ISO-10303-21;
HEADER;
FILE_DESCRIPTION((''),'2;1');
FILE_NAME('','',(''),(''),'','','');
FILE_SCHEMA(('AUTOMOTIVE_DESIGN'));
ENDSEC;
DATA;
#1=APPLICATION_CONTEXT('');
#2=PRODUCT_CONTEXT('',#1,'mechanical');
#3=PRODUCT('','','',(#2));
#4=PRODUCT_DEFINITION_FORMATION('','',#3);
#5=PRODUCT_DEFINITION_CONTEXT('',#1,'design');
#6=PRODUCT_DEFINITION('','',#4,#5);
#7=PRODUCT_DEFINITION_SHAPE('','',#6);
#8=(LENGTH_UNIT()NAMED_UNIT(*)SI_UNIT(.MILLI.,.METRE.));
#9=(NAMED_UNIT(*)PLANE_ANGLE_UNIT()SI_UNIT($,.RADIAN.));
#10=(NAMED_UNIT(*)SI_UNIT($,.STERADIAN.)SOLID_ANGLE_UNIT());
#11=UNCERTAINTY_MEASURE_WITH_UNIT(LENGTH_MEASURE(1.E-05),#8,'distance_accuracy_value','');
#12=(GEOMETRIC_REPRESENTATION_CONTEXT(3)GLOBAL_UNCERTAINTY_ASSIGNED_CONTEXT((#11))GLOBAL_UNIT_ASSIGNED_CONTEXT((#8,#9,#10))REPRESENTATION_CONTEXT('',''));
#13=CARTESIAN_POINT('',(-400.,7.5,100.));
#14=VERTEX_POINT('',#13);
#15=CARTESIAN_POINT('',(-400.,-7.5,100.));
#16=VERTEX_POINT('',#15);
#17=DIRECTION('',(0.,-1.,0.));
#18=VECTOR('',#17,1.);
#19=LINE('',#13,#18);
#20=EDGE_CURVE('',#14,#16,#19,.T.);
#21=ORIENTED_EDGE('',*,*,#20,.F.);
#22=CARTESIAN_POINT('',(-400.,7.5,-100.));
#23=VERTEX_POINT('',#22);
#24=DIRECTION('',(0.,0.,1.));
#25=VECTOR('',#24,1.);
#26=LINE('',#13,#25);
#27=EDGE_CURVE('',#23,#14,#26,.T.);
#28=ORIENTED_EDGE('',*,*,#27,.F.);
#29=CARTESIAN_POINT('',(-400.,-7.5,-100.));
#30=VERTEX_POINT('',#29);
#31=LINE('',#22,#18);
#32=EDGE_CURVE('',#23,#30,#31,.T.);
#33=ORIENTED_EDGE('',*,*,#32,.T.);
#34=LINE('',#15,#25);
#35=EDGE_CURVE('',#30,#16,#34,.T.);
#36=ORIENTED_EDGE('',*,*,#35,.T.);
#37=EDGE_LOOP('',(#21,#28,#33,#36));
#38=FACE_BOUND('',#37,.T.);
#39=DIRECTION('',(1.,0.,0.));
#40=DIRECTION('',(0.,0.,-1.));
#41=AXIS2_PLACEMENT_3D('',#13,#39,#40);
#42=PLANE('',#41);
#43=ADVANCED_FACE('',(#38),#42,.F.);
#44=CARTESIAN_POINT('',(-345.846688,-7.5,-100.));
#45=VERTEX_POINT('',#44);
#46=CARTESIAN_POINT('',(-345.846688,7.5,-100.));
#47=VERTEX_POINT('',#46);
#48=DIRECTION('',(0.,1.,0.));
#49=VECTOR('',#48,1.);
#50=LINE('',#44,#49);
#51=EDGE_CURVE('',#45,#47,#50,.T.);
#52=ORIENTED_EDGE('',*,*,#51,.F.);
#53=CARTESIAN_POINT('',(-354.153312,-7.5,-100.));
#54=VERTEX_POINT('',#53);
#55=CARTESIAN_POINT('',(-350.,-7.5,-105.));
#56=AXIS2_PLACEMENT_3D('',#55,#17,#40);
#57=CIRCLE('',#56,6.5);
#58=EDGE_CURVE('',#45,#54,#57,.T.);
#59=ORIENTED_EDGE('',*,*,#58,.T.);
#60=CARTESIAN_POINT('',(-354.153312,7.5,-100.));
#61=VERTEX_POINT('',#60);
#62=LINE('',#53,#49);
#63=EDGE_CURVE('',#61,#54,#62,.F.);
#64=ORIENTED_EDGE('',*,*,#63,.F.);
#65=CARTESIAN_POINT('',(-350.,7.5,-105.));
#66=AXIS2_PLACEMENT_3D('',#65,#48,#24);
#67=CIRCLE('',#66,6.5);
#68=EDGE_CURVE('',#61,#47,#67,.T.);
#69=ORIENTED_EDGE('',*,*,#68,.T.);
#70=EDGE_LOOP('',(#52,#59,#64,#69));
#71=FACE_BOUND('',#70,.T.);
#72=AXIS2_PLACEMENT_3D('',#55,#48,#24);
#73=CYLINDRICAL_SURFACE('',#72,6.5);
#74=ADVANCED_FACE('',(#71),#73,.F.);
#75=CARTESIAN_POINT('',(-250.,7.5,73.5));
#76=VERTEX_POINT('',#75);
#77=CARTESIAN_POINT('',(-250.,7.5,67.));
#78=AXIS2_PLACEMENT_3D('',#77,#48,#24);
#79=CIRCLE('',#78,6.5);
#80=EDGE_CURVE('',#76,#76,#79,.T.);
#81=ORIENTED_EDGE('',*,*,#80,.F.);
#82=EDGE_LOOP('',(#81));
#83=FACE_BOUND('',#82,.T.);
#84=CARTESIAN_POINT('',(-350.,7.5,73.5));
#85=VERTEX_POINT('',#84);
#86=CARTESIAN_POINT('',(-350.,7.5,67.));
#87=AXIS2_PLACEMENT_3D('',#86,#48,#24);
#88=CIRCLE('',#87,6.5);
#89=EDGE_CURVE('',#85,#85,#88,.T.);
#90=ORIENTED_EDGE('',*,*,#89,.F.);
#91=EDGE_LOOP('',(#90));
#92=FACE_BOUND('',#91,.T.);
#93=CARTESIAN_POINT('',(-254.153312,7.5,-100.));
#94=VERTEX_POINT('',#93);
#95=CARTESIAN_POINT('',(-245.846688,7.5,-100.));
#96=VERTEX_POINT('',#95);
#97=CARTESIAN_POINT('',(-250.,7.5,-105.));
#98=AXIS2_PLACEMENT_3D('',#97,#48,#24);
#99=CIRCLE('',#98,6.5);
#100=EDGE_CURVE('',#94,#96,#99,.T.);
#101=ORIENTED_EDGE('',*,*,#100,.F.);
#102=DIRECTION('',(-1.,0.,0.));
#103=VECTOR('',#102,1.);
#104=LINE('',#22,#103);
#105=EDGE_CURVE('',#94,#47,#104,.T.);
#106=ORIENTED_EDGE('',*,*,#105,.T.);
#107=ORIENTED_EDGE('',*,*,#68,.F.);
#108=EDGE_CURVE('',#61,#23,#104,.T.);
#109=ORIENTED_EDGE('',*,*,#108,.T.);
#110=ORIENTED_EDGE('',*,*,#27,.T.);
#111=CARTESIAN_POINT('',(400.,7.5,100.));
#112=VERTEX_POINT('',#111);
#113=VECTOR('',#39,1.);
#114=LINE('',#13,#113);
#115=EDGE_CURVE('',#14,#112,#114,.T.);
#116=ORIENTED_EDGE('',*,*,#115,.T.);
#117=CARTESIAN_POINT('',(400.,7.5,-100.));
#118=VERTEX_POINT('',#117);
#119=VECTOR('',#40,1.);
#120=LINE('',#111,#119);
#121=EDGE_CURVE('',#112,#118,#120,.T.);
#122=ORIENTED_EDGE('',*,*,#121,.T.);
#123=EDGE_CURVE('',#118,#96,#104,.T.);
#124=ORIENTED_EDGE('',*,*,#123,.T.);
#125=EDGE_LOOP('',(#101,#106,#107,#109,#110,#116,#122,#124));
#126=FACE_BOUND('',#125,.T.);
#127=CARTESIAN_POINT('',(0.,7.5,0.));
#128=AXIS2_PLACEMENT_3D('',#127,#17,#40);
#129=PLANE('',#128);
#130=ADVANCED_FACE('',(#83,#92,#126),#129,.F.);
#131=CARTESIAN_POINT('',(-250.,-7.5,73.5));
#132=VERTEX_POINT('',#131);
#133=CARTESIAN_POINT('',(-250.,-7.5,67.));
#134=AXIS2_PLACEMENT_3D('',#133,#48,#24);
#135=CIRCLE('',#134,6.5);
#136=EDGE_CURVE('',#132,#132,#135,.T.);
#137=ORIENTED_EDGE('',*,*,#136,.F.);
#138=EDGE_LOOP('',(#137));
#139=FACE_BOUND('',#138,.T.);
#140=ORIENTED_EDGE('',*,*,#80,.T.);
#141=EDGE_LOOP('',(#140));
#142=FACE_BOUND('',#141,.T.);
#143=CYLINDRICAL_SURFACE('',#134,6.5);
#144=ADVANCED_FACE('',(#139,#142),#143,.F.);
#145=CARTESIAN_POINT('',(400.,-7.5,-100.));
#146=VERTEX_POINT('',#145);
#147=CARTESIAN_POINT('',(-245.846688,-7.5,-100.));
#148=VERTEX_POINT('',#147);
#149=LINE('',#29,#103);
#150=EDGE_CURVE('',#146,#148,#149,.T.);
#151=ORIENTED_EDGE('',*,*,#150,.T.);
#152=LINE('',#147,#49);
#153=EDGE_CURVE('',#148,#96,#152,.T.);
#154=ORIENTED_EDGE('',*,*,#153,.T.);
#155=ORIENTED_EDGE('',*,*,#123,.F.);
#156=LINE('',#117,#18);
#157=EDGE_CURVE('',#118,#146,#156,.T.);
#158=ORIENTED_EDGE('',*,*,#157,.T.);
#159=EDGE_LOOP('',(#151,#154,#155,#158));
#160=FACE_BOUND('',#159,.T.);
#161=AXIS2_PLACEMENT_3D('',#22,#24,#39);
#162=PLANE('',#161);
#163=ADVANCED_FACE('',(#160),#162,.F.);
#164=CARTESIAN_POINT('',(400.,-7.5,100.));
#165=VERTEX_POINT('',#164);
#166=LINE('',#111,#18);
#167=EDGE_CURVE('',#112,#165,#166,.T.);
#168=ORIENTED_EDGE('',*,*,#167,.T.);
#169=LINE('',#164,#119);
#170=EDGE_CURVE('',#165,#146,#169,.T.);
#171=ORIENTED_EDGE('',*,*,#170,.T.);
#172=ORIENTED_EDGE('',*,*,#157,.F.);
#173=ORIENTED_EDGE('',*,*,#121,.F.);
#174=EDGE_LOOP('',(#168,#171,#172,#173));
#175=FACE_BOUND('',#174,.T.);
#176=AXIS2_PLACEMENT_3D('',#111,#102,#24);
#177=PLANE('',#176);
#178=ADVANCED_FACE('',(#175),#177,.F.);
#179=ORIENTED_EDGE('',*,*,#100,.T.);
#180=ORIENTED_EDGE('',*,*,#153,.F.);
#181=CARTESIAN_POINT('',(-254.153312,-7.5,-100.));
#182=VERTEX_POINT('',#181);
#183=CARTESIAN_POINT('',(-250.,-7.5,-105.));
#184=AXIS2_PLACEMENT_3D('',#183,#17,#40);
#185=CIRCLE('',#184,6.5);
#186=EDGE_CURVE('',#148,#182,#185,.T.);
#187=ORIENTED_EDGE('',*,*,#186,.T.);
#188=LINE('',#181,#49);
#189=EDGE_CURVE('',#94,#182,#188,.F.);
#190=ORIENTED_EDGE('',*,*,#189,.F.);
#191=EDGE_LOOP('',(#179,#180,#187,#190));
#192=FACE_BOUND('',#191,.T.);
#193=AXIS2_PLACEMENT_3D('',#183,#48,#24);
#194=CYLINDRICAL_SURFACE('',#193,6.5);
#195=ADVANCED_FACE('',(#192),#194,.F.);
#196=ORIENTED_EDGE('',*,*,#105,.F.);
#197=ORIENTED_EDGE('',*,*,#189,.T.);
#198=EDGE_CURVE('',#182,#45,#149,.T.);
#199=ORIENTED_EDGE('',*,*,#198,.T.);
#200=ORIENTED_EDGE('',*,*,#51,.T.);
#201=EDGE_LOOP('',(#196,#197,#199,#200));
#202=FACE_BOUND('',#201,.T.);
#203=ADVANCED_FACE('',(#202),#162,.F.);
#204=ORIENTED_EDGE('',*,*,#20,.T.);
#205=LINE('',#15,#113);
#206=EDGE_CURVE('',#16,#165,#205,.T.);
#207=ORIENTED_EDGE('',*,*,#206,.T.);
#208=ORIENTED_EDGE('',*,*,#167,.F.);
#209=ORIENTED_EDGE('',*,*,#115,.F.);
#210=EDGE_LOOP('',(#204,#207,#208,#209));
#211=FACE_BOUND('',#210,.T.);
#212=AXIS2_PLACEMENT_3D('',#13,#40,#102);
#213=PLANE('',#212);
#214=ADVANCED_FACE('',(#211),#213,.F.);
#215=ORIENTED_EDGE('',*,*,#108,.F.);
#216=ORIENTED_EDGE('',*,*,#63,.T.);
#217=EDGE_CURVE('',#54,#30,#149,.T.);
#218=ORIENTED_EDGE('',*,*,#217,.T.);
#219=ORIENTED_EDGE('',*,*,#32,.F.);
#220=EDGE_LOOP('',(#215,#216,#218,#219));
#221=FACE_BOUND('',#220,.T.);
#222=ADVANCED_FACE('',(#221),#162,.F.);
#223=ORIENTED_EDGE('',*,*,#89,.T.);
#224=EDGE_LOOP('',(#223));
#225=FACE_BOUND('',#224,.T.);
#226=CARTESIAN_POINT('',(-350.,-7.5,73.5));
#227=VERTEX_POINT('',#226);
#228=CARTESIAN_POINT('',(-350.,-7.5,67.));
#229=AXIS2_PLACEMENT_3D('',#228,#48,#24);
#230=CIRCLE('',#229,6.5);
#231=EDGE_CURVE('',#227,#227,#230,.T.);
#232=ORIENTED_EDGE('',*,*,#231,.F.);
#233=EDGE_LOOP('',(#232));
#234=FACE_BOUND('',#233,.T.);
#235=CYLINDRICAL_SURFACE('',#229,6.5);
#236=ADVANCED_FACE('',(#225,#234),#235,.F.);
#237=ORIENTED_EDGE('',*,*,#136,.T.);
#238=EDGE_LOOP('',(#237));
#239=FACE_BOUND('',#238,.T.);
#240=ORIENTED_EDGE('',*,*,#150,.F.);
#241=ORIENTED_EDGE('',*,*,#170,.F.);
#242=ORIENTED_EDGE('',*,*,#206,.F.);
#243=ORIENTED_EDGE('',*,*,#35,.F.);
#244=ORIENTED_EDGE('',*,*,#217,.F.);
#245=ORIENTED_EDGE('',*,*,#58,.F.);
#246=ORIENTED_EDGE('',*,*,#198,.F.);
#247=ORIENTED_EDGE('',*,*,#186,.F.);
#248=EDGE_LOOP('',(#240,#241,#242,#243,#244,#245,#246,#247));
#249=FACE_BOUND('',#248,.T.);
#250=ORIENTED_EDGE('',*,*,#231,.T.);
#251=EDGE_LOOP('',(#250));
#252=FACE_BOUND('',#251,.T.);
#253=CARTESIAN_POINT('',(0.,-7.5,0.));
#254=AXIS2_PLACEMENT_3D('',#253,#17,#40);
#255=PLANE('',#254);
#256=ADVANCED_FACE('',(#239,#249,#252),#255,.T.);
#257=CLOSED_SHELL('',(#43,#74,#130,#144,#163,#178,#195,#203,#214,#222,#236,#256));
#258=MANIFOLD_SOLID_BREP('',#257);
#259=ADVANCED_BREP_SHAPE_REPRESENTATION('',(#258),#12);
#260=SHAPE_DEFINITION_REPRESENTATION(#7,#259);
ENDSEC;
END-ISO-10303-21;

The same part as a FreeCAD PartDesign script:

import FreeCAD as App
import Part
import Sketcher
from FreeCAD import Vector


def add_polygon(sketch, points):
    """Adds a closed chain of lines whose ends are joined by coincident constraints."""
    first, n = sketch.GeometryCount, len(points)
    for a, b in zip(points, points[1:] + points[:1]):
        sketch.addGeometry(Part.LineSegment(App.Vector(*a, 0), App.Vector(*b, 0)), False)
    for i in range(n):
        sketch.addConstraint(Sketcher.Constraint("Coincident", first + i, 2, first + (i + 1) % n, 1))

doc = App.newDocument("Part")
params = doc.addObject("Spreadsheet::Sheet", "Params")
for row, (alias, value) in enumerate([
    ("sketch1_width", "800 mm"),
    ("sketch1_height", "200 mm"),
    ("pad1_length", "15 mm"),
    ("sketch2_diameter", "13 mm"),
], start=1):
    params.set(f"A{row}", alias)
    params.set(f"B{row}", "=" + value)
    params.setAlias(f"B{row}", alias)

body = doc.addObject("PartDesign::Body", "Body")

# Sketch on XZ plane
sketch1 = doc.addObject("Sketcher::SketchObject", "Sketch")
body.addObject(sketch1)
sketch1.AttachmentSupport = (doc.XZ_Plane, [""])
sketch1.MapMode = "FlatFace"
add_polygon(sketch1, [(-400, -100), (-400, 100), (400, 100), (400, -100)])  # lines 0-3
sketch1.addConstraint(Sketcher.Constraint("Vertical", 0))
sketch1.addConstraint(Sketcher.Constraint("Horizontal", 1))
sketch1.addConstraint(Sketcher.Constraint("Vertical", 2))
sketch1.addConstraint(Sketcher.Constraint("Horizontal", 3))
sketch1.addConstraint(Sketcher.Constraint("Symmetric", 0, 2, 2, 2, -1, 1))
sketch1.addConstraint(Sketcher.Constraint("DistanceX", 1, 1, 1, 2, 800.0))
sketch1.addConstraint(Sketcher.Constraint("DistanceY", 0, 1, 0, 2, 200.0))
sketch1.setExpression("Constraints[9]", "Params.sketch1_width")
sketch1.setExpression("Constraints[10]", "Params.sketch1_height")
pad1 = doc.addObject("PartDesign::Pad", "Pad")
body.addObject(pad1)
pad1.Profile = sketch1
pad1.setExpression("Length", "Params.pad1_length")
pad1.Midplane = True

# Sketch on XZ plane
sketch2 = doc.addObject("Sketcher::SketchObject", "Sketch001")
body.addObject(sketch2)
sketch2.AttachmentSupport = (doc.XZ_Plane, [""])
sketch2.MapMode = "FlatFace"
sketch2.AttachmentOffset = App.Placement(Vector(0, 0, -7.5), App.Rotation())
sketch2.addGeometry(Part.Circle(Vector(-350, 67, 0), Vector(0, 0, 1), 6), False)
sketch2.addGeometry(Part.Circle(Vector(-250, 67, 0), Vector(0, 0, 1), 6), False)
sketch2.addGeometry(Part.Circle(Vector(-350, -105, 0), Vector(0, 0, 1), 6), False)
sketch2.addGeometry(Part.Circle(Vector(-250, -105, 0), Vector(0, 0, 1), 6), False)
sketch2.addConstraint(Sketcher.Constraint("Equal", 0, 1))
sketch2.addConstraint(Sketcher.Constraint("Equal", 1, 2))
sketch2.addConstraint(Sketcher.Constraint("Equal", 2, 3))
sketch2.addConstraint(Sketcher.Constraint("Horizontal", 0, 3, 1, 3))
sketch2.addConstraint(Sketcher.Constraint("Horizontal", 2, 3, 3, 3))
sketch2.addConstraint(Sketcher.Constraint("Vertical", 0, 3, 2, 3))
sketch2.addConstraint(Sketcher.Constraint("Vertical", 1, 3, 3, 3))
sketch2.addConstraint(Sketcher.Constraint("Diameter", 0, 13.0))
sketch2.addConstraint(Sketcher.Constraint("DistanceX", 0, 3, -1, 1, 350.0))
sketch2.addConstraint(Sketcher.Constraint("DistanceY", -1, 1, 0, 3, 67.0))
sketch2.addConstraint(Sketcher.Constraint("DistanceX", 1, 3, -1, 1, 250.0))
sketch2.addConstraint(Sketcher.Constraint("DistanceY", 2, 3, -1, 1, 105.0))
sketch2.setExpression("Constraints[7]", "Params.sketch2_diameter")
pocket1 = doc.addObject("PartDesign::Pocket", "Pocket")
body.addObject(pocket1)
pocket1.Profile = sketch2
pocket1.Type = "ThroughAll"
pocket1.Reversed = True

doc.recompute()
